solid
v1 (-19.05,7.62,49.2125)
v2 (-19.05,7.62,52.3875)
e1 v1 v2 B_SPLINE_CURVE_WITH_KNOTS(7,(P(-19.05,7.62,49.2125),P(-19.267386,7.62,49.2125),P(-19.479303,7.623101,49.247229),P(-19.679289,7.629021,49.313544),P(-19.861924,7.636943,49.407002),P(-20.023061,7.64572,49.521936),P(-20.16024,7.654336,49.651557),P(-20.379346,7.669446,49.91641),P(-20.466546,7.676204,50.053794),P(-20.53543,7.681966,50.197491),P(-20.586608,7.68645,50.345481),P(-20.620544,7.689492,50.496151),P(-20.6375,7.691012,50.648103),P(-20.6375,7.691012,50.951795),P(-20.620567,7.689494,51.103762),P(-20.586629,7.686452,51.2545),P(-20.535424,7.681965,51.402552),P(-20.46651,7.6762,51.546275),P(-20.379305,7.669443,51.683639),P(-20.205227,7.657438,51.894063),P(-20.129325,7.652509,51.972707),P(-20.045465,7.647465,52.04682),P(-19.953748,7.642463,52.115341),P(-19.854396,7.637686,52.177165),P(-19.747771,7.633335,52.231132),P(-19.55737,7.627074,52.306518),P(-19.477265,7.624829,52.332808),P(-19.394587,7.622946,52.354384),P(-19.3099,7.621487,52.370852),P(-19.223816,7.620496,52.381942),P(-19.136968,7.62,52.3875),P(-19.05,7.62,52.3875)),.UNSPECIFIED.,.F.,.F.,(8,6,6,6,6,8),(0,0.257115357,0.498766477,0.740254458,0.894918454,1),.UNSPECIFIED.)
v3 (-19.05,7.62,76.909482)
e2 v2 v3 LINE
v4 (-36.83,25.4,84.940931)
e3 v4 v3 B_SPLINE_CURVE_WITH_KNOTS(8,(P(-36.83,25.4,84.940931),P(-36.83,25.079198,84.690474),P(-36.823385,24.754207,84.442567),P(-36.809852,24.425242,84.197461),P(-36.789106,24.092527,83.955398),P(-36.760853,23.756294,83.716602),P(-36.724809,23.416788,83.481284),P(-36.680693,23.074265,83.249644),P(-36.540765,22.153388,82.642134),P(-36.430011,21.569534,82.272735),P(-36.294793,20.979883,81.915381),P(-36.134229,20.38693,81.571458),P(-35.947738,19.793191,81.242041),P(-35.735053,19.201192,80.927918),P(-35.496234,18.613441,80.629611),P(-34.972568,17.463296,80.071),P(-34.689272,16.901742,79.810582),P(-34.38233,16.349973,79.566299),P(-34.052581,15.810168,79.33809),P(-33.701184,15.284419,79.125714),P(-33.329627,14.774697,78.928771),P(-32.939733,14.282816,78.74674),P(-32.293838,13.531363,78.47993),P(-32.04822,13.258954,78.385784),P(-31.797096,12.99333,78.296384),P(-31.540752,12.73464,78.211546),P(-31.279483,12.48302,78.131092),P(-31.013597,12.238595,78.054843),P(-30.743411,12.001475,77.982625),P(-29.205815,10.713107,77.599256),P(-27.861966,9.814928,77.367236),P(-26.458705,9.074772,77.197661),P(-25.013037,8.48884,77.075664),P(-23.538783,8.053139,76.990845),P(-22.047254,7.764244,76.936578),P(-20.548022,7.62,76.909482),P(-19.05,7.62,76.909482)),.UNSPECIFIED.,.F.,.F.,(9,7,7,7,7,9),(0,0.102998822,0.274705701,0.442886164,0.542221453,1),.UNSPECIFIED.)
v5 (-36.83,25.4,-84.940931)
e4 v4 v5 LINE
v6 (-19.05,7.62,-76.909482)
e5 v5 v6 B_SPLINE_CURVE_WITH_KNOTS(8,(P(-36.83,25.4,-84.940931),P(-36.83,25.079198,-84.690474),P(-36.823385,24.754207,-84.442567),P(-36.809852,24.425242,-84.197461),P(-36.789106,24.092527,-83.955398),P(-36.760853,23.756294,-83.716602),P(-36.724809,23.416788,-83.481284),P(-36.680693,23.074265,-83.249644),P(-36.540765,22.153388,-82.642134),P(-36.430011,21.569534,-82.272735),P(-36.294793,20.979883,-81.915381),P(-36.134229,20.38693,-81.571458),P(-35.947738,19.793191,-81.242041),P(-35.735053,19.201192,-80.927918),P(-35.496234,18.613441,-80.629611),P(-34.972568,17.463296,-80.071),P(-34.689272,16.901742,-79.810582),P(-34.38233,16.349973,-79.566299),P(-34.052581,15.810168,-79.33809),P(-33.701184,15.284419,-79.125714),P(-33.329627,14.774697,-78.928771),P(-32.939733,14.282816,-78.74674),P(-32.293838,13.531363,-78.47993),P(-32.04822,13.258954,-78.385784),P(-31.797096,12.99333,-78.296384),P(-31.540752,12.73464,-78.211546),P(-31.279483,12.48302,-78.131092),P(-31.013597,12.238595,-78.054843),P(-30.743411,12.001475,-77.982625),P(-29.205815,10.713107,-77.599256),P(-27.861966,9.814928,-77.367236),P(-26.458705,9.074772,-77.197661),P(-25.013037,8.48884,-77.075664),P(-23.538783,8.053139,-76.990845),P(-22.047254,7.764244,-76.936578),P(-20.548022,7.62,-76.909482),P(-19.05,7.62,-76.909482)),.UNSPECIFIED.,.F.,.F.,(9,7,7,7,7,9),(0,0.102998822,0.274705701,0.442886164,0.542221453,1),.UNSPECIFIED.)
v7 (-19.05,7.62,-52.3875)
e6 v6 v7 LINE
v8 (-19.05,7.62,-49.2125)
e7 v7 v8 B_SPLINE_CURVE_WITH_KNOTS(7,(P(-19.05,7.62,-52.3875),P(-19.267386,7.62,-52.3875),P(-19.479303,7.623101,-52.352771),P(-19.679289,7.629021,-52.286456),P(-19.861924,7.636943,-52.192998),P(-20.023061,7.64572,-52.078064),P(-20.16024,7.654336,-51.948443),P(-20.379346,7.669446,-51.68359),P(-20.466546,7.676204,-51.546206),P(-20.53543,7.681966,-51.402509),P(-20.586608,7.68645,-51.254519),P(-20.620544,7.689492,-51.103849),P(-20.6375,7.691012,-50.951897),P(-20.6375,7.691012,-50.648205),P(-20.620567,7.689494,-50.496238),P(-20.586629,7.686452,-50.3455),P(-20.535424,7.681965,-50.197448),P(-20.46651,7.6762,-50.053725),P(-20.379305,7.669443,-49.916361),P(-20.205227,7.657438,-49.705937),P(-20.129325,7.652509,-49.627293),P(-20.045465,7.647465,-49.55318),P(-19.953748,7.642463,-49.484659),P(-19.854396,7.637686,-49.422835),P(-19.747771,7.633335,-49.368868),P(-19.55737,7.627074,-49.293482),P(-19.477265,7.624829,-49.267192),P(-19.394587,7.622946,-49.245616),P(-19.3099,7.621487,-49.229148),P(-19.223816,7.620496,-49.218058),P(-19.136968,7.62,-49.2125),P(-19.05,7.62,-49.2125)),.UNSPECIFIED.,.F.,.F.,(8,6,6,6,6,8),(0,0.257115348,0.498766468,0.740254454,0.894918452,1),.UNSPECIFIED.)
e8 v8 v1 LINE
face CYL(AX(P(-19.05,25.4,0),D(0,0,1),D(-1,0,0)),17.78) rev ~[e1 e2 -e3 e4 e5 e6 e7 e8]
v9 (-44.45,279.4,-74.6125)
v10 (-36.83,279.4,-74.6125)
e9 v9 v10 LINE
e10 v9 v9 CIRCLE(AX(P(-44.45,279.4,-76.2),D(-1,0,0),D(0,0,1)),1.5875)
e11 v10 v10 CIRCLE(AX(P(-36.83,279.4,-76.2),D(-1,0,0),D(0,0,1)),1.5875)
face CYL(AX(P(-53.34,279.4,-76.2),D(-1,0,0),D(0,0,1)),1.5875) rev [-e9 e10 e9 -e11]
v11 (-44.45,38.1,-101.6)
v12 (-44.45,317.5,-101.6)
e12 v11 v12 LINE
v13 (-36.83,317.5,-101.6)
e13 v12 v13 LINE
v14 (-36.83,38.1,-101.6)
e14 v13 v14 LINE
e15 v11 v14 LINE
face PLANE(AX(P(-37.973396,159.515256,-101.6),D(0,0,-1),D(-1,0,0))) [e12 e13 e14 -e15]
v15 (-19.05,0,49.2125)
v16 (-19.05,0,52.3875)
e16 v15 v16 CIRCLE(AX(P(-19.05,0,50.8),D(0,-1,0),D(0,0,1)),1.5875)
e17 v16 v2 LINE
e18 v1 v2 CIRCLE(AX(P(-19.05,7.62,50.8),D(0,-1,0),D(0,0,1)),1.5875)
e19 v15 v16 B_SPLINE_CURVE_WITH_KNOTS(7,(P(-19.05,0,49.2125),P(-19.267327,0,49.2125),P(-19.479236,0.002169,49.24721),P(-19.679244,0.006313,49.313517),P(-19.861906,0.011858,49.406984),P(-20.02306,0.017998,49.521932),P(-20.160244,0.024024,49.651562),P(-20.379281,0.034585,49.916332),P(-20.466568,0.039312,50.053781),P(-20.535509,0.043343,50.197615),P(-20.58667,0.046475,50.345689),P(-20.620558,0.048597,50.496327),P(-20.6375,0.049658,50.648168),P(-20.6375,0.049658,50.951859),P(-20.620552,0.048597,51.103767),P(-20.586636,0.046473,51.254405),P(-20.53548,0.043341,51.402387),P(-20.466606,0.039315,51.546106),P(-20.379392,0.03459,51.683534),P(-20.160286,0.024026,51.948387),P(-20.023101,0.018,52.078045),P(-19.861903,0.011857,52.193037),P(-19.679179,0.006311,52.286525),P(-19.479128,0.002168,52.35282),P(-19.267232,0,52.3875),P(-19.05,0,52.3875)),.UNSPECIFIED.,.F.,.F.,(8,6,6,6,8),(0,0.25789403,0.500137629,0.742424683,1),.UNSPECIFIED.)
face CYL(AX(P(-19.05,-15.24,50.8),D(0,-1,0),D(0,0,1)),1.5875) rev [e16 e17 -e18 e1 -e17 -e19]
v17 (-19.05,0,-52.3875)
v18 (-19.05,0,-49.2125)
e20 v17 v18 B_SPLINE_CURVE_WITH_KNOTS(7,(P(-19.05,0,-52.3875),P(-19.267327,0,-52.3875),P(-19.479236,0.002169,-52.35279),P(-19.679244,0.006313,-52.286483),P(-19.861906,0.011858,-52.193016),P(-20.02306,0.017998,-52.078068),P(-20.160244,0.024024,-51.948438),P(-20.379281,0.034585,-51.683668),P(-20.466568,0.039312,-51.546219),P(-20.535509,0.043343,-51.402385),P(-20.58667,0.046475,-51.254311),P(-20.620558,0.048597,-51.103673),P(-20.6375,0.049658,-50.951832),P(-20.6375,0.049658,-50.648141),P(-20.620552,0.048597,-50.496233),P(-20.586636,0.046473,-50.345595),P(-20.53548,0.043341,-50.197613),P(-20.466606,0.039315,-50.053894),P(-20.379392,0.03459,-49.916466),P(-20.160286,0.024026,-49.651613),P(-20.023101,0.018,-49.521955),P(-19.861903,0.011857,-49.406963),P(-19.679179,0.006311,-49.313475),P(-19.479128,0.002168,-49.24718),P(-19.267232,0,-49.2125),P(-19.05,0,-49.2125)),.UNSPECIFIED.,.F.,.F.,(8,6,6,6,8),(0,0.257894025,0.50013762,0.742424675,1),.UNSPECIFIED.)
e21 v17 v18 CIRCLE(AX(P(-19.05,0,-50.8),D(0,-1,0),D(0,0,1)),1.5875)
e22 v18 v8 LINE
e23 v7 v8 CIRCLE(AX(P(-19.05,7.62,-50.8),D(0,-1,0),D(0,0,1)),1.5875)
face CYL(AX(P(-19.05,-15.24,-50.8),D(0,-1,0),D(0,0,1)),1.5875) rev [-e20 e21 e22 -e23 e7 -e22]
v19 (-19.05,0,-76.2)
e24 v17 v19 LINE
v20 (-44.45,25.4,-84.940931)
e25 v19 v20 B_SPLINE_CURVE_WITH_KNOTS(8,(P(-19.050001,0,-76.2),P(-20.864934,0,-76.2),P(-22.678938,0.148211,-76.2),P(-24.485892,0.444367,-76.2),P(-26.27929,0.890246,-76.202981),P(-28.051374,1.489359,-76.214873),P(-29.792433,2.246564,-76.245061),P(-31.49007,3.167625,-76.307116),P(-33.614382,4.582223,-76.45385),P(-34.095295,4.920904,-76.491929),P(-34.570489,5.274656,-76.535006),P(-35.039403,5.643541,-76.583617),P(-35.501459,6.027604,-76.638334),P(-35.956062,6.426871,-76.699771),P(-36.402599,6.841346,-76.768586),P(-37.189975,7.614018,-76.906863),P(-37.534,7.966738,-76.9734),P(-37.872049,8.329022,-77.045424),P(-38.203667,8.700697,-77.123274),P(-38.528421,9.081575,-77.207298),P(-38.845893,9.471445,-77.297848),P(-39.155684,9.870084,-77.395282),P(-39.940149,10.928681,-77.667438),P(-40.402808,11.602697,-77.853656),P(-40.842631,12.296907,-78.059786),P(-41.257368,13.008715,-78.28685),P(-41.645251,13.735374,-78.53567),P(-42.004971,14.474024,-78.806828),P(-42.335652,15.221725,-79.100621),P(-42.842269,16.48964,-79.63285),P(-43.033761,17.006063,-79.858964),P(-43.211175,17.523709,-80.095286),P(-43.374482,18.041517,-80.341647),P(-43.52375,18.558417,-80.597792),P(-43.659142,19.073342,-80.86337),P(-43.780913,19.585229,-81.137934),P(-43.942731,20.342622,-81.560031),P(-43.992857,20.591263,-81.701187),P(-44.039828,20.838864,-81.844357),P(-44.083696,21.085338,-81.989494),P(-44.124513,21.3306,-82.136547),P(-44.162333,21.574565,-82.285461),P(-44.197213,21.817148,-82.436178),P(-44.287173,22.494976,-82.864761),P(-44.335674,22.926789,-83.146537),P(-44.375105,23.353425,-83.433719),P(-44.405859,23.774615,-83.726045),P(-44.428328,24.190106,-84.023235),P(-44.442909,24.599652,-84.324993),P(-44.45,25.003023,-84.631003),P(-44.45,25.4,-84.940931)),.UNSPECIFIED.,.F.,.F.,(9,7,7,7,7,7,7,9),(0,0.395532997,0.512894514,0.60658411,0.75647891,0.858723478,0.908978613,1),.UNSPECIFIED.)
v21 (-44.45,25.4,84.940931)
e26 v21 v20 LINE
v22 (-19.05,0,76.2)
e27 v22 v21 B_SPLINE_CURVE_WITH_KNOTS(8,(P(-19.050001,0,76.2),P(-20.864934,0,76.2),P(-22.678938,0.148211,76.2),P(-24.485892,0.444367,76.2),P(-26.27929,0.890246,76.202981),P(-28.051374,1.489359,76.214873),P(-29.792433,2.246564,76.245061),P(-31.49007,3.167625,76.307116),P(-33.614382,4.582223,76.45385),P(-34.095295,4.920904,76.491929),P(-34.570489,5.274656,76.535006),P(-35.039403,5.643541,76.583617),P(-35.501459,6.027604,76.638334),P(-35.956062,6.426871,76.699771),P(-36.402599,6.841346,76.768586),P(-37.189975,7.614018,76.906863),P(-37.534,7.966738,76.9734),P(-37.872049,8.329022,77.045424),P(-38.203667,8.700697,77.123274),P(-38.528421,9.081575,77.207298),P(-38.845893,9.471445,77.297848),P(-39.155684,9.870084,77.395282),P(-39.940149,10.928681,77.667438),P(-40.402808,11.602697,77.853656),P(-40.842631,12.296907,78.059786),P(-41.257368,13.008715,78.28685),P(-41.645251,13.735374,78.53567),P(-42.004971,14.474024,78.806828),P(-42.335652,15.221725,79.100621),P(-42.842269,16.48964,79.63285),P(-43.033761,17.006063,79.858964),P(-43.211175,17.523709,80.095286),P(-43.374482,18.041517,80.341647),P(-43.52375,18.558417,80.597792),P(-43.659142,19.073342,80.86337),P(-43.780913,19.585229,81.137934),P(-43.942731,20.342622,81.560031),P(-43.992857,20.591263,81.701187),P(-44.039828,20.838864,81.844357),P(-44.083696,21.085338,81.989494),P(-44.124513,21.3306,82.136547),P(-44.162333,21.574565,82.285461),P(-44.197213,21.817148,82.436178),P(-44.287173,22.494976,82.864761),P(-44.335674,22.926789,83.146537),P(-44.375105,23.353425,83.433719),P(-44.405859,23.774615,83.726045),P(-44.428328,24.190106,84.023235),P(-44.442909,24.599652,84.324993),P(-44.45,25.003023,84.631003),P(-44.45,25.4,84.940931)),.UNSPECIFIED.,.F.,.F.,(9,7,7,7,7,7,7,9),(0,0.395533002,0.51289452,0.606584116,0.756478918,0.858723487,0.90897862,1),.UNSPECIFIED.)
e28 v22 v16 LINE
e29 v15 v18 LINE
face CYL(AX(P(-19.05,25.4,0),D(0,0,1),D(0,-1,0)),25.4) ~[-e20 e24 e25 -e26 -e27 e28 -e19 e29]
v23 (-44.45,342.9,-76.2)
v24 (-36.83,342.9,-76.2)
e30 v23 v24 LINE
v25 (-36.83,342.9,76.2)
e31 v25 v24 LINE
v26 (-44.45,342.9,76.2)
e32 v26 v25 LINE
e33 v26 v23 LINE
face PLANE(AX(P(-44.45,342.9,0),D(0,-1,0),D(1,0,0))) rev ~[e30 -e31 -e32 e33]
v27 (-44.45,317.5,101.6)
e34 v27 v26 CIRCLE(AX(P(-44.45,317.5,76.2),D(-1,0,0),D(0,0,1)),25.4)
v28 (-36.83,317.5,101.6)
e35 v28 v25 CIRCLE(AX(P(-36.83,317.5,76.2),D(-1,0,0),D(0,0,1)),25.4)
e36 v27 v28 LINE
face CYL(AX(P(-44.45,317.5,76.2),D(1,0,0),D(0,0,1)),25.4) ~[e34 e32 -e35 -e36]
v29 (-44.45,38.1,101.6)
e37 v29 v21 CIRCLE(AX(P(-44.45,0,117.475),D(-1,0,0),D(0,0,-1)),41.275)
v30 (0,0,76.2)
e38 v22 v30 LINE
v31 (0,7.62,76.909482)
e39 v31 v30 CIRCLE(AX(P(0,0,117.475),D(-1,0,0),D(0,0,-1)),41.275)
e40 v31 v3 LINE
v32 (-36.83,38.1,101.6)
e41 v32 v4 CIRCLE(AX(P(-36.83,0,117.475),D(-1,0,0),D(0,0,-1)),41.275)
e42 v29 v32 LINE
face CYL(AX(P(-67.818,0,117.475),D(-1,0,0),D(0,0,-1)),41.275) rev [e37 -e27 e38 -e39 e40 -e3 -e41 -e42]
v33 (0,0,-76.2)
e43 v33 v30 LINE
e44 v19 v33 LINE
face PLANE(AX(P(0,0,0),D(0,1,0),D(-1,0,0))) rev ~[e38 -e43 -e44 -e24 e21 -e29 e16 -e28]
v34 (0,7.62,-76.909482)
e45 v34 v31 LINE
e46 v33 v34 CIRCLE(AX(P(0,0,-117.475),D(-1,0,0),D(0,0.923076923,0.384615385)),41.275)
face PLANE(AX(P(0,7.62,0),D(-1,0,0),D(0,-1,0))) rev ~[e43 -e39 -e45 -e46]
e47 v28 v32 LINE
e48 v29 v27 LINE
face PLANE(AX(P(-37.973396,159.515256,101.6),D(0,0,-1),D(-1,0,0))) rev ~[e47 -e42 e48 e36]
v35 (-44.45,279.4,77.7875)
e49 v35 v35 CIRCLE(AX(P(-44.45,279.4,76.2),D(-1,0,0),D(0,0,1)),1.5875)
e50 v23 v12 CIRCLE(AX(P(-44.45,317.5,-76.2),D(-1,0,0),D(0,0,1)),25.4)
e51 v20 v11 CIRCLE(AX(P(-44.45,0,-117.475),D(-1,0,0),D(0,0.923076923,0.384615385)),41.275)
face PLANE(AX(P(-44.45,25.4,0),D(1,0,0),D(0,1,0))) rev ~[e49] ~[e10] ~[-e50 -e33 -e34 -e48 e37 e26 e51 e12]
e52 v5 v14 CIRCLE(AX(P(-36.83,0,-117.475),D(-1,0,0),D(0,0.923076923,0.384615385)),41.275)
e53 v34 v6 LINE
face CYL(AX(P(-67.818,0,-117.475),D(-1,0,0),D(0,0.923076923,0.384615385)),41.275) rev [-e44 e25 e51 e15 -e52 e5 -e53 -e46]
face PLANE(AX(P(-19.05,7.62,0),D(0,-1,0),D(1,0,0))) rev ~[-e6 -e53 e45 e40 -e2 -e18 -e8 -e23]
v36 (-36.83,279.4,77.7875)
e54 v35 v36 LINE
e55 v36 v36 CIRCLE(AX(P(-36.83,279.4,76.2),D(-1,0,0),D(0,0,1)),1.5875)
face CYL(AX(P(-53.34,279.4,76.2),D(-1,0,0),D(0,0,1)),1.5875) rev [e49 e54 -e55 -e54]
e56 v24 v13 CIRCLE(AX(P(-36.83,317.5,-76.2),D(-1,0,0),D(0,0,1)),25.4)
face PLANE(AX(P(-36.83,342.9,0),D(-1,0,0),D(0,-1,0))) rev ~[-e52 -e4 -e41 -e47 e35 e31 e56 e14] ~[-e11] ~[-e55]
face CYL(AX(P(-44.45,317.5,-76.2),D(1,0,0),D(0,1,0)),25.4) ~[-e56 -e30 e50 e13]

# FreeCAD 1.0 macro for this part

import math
import FreeCAD as App
import Part
import Sketcher
Q = App.Units.Quantity


def edges_at(feature, points):
    """Names of the edges that pass closest to the given points."""
    edges = feature.Shape.Edges
    near = lambda p: min(range(len(edges)), key=lambda i: edges[i].distToShape(Part.Vertex(*p))[0])
    return sorted({f"Edge{near(p) + 1}" for p in points})

doc = App.newDocument("Part")
params = doc.addObject("Spreadsheet::Sheet", "Params")
for row, (alias, value) in enumerate([
    ("sketch1_radius", "1 in"),
    ("sketch1_radius2", "0.7 in"),
    ("sketch1_height", "12.5 in"),
    ("sketch1_width", "0.75 in"),
    ("pad1_length", "8 in"),
    ("fillet_radius", "1 in"),
    ("fillet2_radius", "1 in"),
    ("sketch2_height", "1 in"),
    ("sketch2_width", "1.5 in"),
    ("sketch3_diameter", "0.125 in"),
    ("sketch4_diameter", "0.125 in"),
], start=1):
    params.set(f"A{row}", alias)
    params.set(f"B{row}", "=" + value)
    params.setAlias(f"B{row}", alias)

body = doc.addObject("PartDesign::Body", "Body")

# Sketch on XY plane
sketch1 = body.newObject("Sketcher::SketchObject", "Sketch")
sketch1.AttachmentSupport = (doc.getObject("XY_Plane"), [""])
sketch1.MapMode = "FlatFace"
sketch1.addGeometry(Part.LineSegment(App.Vector(-19, 0, 0), App.Vector(0, 0, 0)), False)
sketch1.addGeometry(Part.LineSegment(App.Vector(0, 0, 0), App.Vector(0, 8, 0)), False)
sketch1.addGeometry(Part.LineSegment(App.Vector(0, 8, 0), App.Vector(-19, 8, 0)), False)
sketch1.addGeometry(Part.ArcOfCircle(Part.Circle(App.Vector(-19, 25, 0), App.Vector(0, 0, 1), 18), math.radians(-180), math.radians(-90)), False)
sketch1.addGeometry(Part.LineSegment(App.Vector(-37, 25, 0), App.Vector(-37, 343, 0)), False)
sketch1.addGeometry(Part.LineSegment(App.Vector(-37, 343, 0), App.Vector(-44, 343, 0)), False)
sketch1.addGeometry(Part.LineSegment(App.Vector(-44, 343, 0), App.Vector(-44, 25, 0)), False)
sketch1.addGeometry(Part.ArcOfCircle(Part.Circle(App.Vector(-19, 25, 0), App.Vector(0, 0, 1), 25), math.radians(180), math.radians(270)), False)
sketch1.addConstraint(Sketcher.Constraint("Coincident", 0, 2, 1, 1))
sketch1.addConstraint(Sketcher.Constraint("Coincident", 1, 2, 2, 1))
sketch1.addConstraint(Sketcher.Constraint("Tangent", 2, 2, 3, 2))
sketch1.addConstraint(Sketcher.Constraint("Tangent", 3, 1, 4, 1))
sketch1.addConstraint(Sketcher.Constraint("Coincident", 4, 2, 5, 1))
sketch1.addConstraint(Sketcher.Constraint("Coincident", 5, 2, 6, 1))
sketch1.addConstraint(Sketcher.Constraint("Tangent", 6, 2, 7, 1))
sketch1.addConstraint(Sketcher.Constraint("Tangent", 7, 2, 0, 1))
sketch1.addConstraint(Sketcher.Constraint("Horizontal", 0))
sketch1.addConstraint(Sketcher.Constraint("Vertical", 1))
sketch1.addConstraint(Sketcher.Constraint("Horizontal", 2))
sketch1.addConstraint(Sketcher.Constraint("Vertical", 4))
sketch1.addConstraint(Sketcher.Constraint("Horizontal", 5))
sketch1.addConstraint(Sketcher.Constraint("Vertical", 6))
sketch1.addConstraint(Sketcher.Constraint("Coincident", 0, 2, -1, 1))
sketch1.addConstraint(Sketcher.Constraint("Coincident", 7, 3, 3, 3))
sketch1.addConstraint(Sketcher.Constraint("Radius", 7, Q("1 in")))
sketch1.addConstraint(Sketcher.Constraint("Radius", 3, Q("0.7 in")))
sketch1.addConstraint(Sketcher.Constraint("DistanceY", 4, 1, 4, 2, Q("12.5 in")))
sketch1.addConstraint(Sketcher.Constraint("DistanceX", 0, 1, 0, 2, Q("0.75 in")))
sketch1.setExpression("Constraints[16]", "Params.sketch1_radius")
sketch1.setExpression("Constraints[17]", "Params.sketch1_radius2")
sketch1.setExpression("Constraints[18]", "Params.sketch1_height")
sketch1.setExpression("Constraints[19]", "Params.sketch1_width")
pad1 = body.newObject("PartDesign::Pad", "Pad")
pad1.Profile = sketch1
pad1.setExpression("Length", "Params.pad1_length")
pad1.Midplane = True
doc.recompute()

fillet = body.newObject("PartDesign::Fillet", "Fillet")
fillet.Base = (pad1, edges_at(pad1, [(-40.64, 342.9, 101.6)]))
fillet.setExpression("Radius", "Params.fillet_radius")
doc.recompute()

fillet2 = body.newObject("PartDesign::Fillet", "Fillet001")
fillet2.Base = (fillet, edges_at(fillet, [(-40.64, 342.9, -101.6)]))
fillet2.setExpression("Radius", "Params.fillet2_radius")

# Sketch on YZ plane
sketch2 = body.newObject("Sketcher::SketchObject", "Sketch001")
sketch2.AttachmentSupport = (doc.getObject("YZ_Plane"), [""])
sketch2.MapMode = "FlatFace"
sketch2.addGeometry(Part.LineSegment(App.Vector(0, 102, 0), App.Vector(0, 76, 0)), False)
sketch2.addGeometry(Part.ArcOfCircle(Part.Circle(App.Vector(0, 117, 0), App.Vector(0, 0, 1), 41), math.radians(-90), math.radians(-23)), False)
sketch2.addGeometry(Part.LineSegment(App.Vector(38, 102, 0), App.Vector(0, 102, 0)), False)
sketch2.addGeometry(Part.LineSegment(App.Vector(0, -102, 0), App.Vector(38, -102, 0)), False)
sketch2.addGeometry(Part.ArcOfCircle(Part.Circle(App.Vector(0, -117, 0), App.Vector(0, 0, 1), 41), math.radians(23), math.radians(90)), False)
sketch2.addGeometry(Part.LineSegment(App.Vector(0, -76, 0), App.Vector(0, -102, 0)), False)
sketch2.addConstraint(Sketcher.Constraint("Coincident", 0, 2, 1, 1))
sketch2.addConstraint(Sketcher.Constraint("Coincident", 1, 2, 2, 1))
sketch2.addConstraint(Sketcher.Constraint("Coincident", 2, 2, 0, 1))
sketch2.addConstraint(Sketcher.Constraint("Coincident", 3, 2, 4, 1))
sketch2.addConstraint(Sketcher.Constraint("Coincident", 4, 2, 5, 1))
sketch2.addConstraint(Sketcher.Constraint("Coincident", 5, 2, 3, 1))
sketch2.addConstraint(Sketcher.Constraint("Vertical", 0))
sketch2.addConstraint(Sketcher.Constraint("Horizontal", 2))
sketch2.addConstraint(Sketcher.Constraint("Horizontal", 3))
sketch2.addConstraint(Sketcher.Constraint("Vertical", 5))
sketch2.addConstraint(Sketcher.Constraint("Equal", 1, 4))
sketch2.addConstraint(Sketcher.Constraint("Symmetric", 1, 3, 4, 3, -1, 1))
sketch2.addConstraint(Sketcher.Constraint("Symmetric", 2, 2, 5, 2, -1, 1))
sketch2.addConstraint(Sketcher.Constraint("PointOnObject", 1, 3, -2))
sketch2.addConstraint(Sketcher.Constraint("PointOnObject", 0, 2, -2))
sketch2.addConstraint(Sketcher.Constraint("DistanceY", 0, 2, 0, 1, Q("1 in")))
sketch2.addConstraint(Sketcher.Constraint("DistanceX", 2, 2, 2, 1, Q("1.5 in")))
sketch2.addConstraint(Sketcher.Constraint("DistanceY", -1, 1, 0, 2, Q("3 in")))
sketch2.setExpression("Constraints[15]", "Params.sketch2_height")
sketch2.setExpression("Constraints[16]", "Params.sketch2_width")
pocket1 = body.newObject("PartDesign::Pocket", "Pocket")
pocket1.Profile = sketch2
pocket1.Type = "ThroughAll"
pocket1.Midplane = True

# Sketch on YZ plane
sketch3 = body.newObject("Sketcher::SketchObject", "Sketch002")
sketch3.AttachmentSupport = (doc.getObject("YZ_Plane"), [""])
sketch3.MapMode = "FlatFace"
sketch3.AttachmentOffset = App.Placement(App.Vector(0, 0, -1.45 * 25.4), App.Rotation())
sketch3.addGeometry(Part.Circle(App.Vector(279.4, 76.2, 0), App.Vector(0, 0, 1), 1.6), False)
sketch3.addGeometry(Part.Circle(App.Vector(279.4, -76.2, 0), App.Vector(0, 0, 1), 1.6), False)
sketch3.addConstraint(Sketcher.Constraint("Equal", 0, 1))
sketch3.addConstraint(Sketcher.Constraint("Symmetric", 0, 3, 1, 3, -1))
sketch3.addConstraint(Sketcher.Constraint("Diameter", 0, Q("0.125 in")))
sketch3.addConstraint(Sketcher.Constraint("DistanceX", -1, 1, 0, 3, Q("11 in")))
sketch3.addConstraint(Sketcher.Constraint("DistanceY", -1, 1, 0, 3, Q("3 in")))
sketch3.setExpression("Constraints[2]", "Params.sketch3_diameter")
pocket2 = body.newObject("PartDesign::Pocket", "Pocket001")
pocket2.Profile = sketch3
pocket2.Type = "ThroughAll"
pocket2.Midplane = True

# Sketch on XZ plane
sketch4 = body.newObject("Sketcher::SketchObject", "Sketch003")
sketch4.AttachmentSupport = (doc.getObject("XZ_Plane"), [""])
sketch4.MapMode = "FlatFace"
sketch4.AttachmentOffset = App.Placement(App.Vector(0, 0, -0.3 * 25.4), App.Rotation())
sketch4.addGeometry(Part.Circle(App.Vector(-19.1, 50.8, 0), App.Vector(0, 0, 1), 1.6), False)
sketch4.addGeometry(Part.Circle(App.Vector(-19.1, -50.8, 0), App.Vector(0, 0, 1), 1.6), False)
sketch4.addConstraint(Sketcher.Constraint("Equal", 0, 1))
sketch4.addConstraint(Sketcher.Constraint("Symmetric", 0, 3, 1, 3, -1))
sketch4.addConstraint(Sketcher.Constraint("Diameter", 0, Q("0.125 in")))
sketch4.addConstraint(Sketcher.Constraint("DistanceY", -1, 1, 0, 3, Q("2 in")))
sketch4.addConstraint(Sketcher.Constraint("DistanceX", 0, 3, -1, 1, Q("0.75 in")))
sketch4.setExpression("Constraints[2]", "Params.sketch4_diameter")
pocket3 = body.newObject("PartDesign::Pocket", "Pocket002")
pocket3.Profile = sketch4
pocket3.Type = "ThroughAll"
pocket3.Midplane = True

doc.recompute()
